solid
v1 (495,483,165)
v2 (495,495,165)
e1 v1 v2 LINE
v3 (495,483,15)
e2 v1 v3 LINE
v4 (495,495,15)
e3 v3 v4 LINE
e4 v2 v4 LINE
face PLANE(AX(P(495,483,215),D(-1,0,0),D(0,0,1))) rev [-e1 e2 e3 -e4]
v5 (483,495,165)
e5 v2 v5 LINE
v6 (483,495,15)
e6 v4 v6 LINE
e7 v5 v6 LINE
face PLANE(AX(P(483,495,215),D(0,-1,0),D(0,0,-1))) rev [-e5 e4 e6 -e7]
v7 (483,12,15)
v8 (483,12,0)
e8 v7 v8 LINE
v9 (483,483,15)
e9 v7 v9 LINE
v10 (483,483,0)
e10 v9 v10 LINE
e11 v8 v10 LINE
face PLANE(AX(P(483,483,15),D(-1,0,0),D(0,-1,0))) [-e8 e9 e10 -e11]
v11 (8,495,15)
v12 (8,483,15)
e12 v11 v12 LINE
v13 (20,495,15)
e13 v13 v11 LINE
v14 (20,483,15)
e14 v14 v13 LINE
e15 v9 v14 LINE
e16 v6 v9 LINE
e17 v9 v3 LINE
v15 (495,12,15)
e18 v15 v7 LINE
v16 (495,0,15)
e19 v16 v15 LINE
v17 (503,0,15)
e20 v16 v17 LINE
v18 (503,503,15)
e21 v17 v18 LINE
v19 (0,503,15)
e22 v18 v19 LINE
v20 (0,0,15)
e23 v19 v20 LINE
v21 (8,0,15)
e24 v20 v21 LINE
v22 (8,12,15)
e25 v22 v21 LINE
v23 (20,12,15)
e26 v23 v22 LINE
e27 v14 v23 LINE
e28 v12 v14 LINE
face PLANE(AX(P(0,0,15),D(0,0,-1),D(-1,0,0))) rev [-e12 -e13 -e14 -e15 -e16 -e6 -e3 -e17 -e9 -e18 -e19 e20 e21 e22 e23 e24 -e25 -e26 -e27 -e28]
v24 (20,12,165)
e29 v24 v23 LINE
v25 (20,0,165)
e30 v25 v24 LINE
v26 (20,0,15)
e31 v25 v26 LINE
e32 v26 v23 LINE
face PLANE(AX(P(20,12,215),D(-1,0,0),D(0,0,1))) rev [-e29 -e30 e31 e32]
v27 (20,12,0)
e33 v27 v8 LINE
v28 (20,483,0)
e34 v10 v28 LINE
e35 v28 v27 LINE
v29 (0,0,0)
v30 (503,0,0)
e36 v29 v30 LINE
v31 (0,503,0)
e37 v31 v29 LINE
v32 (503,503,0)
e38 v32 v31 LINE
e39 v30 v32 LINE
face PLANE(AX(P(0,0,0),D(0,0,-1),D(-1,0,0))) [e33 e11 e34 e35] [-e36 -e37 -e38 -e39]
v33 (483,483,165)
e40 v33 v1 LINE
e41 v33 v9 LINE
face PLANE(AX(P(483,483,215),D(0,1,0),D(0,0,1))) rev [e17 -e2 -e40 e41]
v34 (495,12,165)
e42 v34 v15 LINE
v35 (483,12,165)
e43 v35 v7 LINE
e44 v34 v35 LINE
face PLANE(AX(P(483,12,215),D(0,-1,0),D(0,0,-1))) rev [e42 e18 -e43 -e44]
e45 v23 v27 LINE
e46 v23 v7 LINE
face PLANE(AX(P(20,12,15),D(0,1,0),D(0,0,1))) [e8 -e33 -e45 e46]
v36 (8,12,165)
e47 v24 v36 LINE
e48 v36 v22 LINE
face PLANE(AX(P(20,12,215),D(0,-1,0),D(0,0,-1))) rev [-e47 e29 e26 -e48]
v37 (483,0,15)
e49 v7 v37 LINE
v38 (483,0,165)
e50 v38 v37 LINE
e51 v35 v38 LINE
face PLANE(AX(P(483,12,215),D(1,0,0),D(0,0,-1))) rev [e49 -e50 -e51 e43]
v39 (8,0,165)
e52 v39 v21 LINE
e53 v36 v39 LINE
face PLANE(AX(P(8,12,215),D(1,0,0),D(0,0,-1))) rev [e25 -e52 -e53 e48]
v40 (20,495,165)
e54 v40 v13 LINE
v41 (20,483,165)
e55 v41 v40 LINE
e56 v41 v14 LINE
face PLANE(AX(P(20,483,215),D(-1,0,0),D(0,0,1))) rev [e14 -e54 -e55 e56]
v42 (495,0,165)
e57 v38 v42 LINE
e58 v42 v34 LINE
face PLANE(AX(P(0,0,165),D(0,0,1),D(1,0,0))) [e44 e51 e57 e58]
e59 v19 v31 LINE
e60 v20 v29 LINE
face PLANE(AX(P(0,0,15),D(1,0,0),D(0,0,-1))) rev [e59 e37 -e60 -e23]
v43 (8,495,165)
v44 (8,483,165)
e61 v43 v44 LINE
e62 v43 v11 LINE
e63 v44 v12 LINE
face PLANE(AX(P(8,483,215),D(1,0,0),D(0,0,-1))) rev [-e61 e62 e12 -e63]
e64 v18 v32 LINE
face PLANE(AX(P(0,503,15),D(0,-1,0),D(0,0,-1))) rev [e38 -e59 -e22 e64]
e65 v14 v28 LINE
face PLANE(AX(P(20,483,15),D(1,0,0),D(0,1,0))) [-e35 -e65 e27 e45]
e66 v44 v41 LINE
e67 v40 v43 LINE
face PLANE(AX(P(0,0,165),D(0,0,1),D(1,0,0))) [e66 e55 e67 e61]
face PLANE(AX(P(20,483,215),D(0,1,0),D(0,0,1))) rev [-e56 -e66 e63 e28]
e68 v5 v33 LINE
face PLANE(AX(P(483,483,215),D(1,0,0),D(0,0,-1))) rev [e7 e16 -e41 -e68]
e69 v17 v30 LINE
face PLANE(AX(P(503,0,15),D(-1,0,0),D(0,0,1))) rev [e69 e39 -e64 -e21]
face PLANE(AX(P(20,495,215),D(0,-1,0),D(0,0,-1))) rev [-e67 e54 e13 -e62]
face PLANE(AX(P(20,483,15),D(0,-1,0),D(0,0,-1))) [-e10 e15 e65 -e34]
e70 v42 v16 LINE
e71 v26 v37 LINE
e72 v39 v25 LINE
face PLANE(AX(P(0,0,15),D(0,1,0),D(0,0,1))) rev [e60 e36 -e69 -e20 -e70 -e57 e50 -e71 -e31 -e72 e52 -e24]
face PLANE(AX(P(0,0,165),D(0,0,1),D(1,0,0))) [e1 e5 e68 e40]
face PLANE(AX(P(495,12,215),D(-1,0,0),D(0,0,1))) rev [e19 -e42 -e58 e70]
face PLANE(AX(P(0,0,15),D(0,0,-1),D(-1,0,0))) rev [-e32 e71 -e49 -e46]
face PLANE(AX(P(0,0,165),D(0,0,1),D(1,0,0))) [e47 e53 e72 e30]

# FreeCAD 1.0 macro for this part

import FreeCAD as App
import Part
import Sketcher

V = App.Vector

doc = App.newDocument("Part")
body = doc.addObject("PartDesign::Body", "Body")

sketch1 = body.newObject("Sketcher::SketchObject", "Sketch")
sketch1.AttachmentSupport = (doc.getObject("XY_Plane"), [""])
sketch1.MapMode = "FlatFace"
sketch1.addGeometry(Part.LineSegment(V(0, 503, 0), V(0, 0, 0)), False)
sketch1.addGeometry(Part.LineSegment(V(0, 0, 0), V(503, 0, 0)), False)
sketch1.addGeometry(Part.LineSegment(V(503, 0, 0), V(503, 503, 0)), False)
sketch1.addGeometry(Part.LineSegment(V(503, 503, 0), V(0, 503, 0)), False)
sketch1.addGeometry(Part.LineSegment(V(483, 12, 0), V(20, 12, 0)), False)
sketch1.addGeometry(Part.LineSegment(V(20, 12, 0), V(20, 483, 0)), False)
sketch1.addGeometry(Part.LineSegment(V(20, 483, 0), V(483, 483, 0)), False)
sketch1.addGeometry(Part.LineSegment(V(483, 483, 0), V(483, 12, 0)), False)
sketch1.addConstraint(Sketcher.Constraint("Coincident", 0, 2, 1, 1))
sketch1.addConstraint(Sketcher.Constraint("Coincident", 1, 2, 2, 1))
sketch1.addConstraint(Sketcher.Constraint("Coincident", 2, 2, 3, 1))
sketch1.addConstraint(Sketcher.Constraint("Coincident", 3, 2, 0, 1))
sketch1.addConstraint(Sketcher.Constraint("Coincident", 4, 2, 5, 1))
sketch1.addConstraint(Sketcher.Constraint("Coincident", 5, 2, 6, 1))
sketch1.addConstraint(Sketcher.Constraint("Coincident", 6, 2, 7, 1))
sketch1.addConstraint(Sketcher.Constraint("Coincident", 7, 2, 4, 1))
sketch1.addConstraint(Sketcher.Constraint("Vertical", 0))
sketch1.addConstraint(Sketcher.Constraint("Horizontal", 1))
sketch1.addConstraint(Sketcher.Constraint("Vertical", 2))
sketch1.addConstraint(Sketcher.Constraint("Horizontal", 3))
sketch1.addConstraint(Sketcher.Constraint("Horizontal", 4))
sketch1.addConstraint(Sketcher.Constraint("Vertical", 5))
sketch1.addConstraint(Sketcher.Constraint("Horizontal", 6))
sketch1.addConstraint(Sketcher.Constraint("Vertical", 7))
sketch1.addConstraint(Sketcher.Constraint("Coincident", 0, 2, -1, 1))
sketch1.addConstraint(Sketcher.Constraint("Equal", 3, 0))
sketch1.addConstraint(Sketcher.Constraint("DistanceX", 1, 1, 1, 2, 503.0))
sketch1.addConstraint(Sketcher.Constraint("DistanceX", 4, 2, 4, 1, 463.0))
sketch1.addConstraint(Sketcher.Constraint("DistanceY", 5, 1, 5, 2, 471.0))
sketch1.addConstraint(Sketcher.Constraint("DistanceX", -1, 1, 4, 2, 20.0))
sketch1.addConstraint(Sketcher.Constraint("DistanceY", -1, 1, 4, 2, 12.0))
pad1 = body.newObject("PartDesign::Pad", "Pad")
pad1.Profile = sketch1
pad1.Length = 15

sketch2 = body.newObject("Sketcher::SketchObject", "Sketch001")
sketch2.AttachmentSupport = (doc.getObject("XY_Plane"), [""])
sketch2.MapMode = "FlatFace"
sketch2.AttachmentOffset = App.Placement(V(0, 0, 15), App.Rotation())
sketch2.addGeometry(Part.LineSegment(V(8, 495, 0), V(8, 483, 0)), False)
sketch2.addGeometry(Part.LineSegment(V(8, 483, 0), V(20, 483, 0)), False)
sketch2.addGeometry(Part.LineSegment(V(20, 483, 0), V(20, 495, 0)), False)
sketch2.addGeometry(Part.LineSegment(V(20, 495, 0), V(8, 495, 0)), False)
sketch2.addGeometry(Part.LineSegment(V(483, 495, 0), V(483, 483, 0)), False)
sketch2.addGeometry(Part.LineSegment(V(483, 483, 0), V(495, 483, 0)), False)
sketch2.addGeometry(Part.LineSegment(V(495, 483, 0), V(495, 495, 0)), False)
sketch2.addGeometry(Part.LineSegment(V(495, 495, 0), V(483, 495, 0)), False)
sketch2.addGeometry(Part.LineSegment(V(8, 12, 0), V(8, 0, 0)), False)
sketch2.addGeometry(Part.LineSegment(V(8, 0, 0), V(20, 0, 0)), False)
sketch2.addGeometry(Part.LineSegment(V(20, 0, 0), V(20, 12, 0)), False)
sketch2.addGeometry(Part.LineSegment(V(20, 12, 0), V(8, 12, 0)), False)
sketch2.addGeometry(Part.LineSegment(V(483, 12, 0), V(483, 0, 0)), False)
sketch2.addGeometry(Part.LineSegment(V(483, 0, 0), V(495, 0, 0)), False)
sketch2.addGeometry(Part.LineSegment(V(495, 0, 0), V(495, 12, 0)), False)
sketch2.addGeometry(Part.LineSegment(V(495, 12, 0), V(483, 12, 0)), False)
sketch2.addConstraint(Sketcher.Constraint("Coincident", 0, 2, 1, 1))
sketch2.addConstraint(Sketcher.Constraint("Coincident", 1, 2, 2, 1))
sketch2.addConstraint(Sketcher.Constraint("Coincident", 2, 2, 3, 1))
sketch2.addConstraint(Sketcher.Constraint("Coincident", 3, 2, 0, 1))
sketch2.addConstraint(Sketcher.Constraint("Coincident", 4, 2, 5, 1))
sketch2.addConstraint(Sketcher.Constraint("Coincident", 5, 2, 6, 1))
sketch2.addConstraint(Sketcher.Constraint("Coincident", 6, 2, 7, 1))
sketch2.addConstraint(Sketcher.Constraint("Coincident", 7, 2, 4, 1))
sketch2.addConstraint(Sketcher.Constraint("Coincident", 8, 2, 9, 1))
sketch2.addConstraint(Sketcher.Constraint("Coincident", 9, 2, 10, 1))
sketch2.addConstraint(Sketcher.Constraint("Coincident", 10, 2, 11, 1))
sketch2.addConstraint(Sketcher.Constraint("Coincident", 11, 2, 8, 1))
sketch2.addConstraint(Sketcher.Constraint("Coincident", 12, 2, 13, 1))
sketch2.addConstraint(Sketcher.Constraint("Coincident", 13, 2, 14, 1))
sketch2.addConstraint(Sketcher.Constraint("Coincident", 14, 2, 15, 1))
sketch2.addConstraint(Sketcher.Constraint("Coincident", 15, 2, 12, 1))
sketch2.addConstraint(Sketcher.Constraint("Vertical", 0))
sketch2.addConstraint(Sketcher.Constraint("Horizontal", 1))
sketch2.addConstraint(Sketcher.Constraint("Vertical", 2))
sketch2.addConstraint(Sketcher.Constraint("Horizontal", 3))
sketch2.addConstraint(Sketcher.Constraint("Vertical", 4))
sketch2.addConstraint(Sketcher.Constraint("Horizontal", 5))
sketch2.addConstraint(Sketcher.Constraint("Vertical", 6))
sketch2.addConstraint(Sketcher.Constraint("Horizontal", 7))
sketch2.addConstraint(Sketcher.Constraint("Vertical", 8))
sketch2.addConstraint(Sketcher.Constraint("Horizontal", 9))
sketch2.addConstraint(Sketcher.Constraint("Vertical", 10))
sketch2.addConstraint(Sketcher.Constraint("Horizontal", 11))
sketch2.addConstraint(Sketcher.Constraint("Vertical", 12))
sketch2.addConstraint(Sketcher.Constraint("Horizontal", 13))
sketch2.addConstraint(Sketcher.Constraint("Vertical", 14))
sketch2.addConstraint(Sketcher.Constraint("Horizontal", 15))
sketch2.addConstraint(Sketcher.Constraint("PointOnObject", 8, 2, -1))
sketch2.addConstraint(Sketcher.Constraint("PointOnObject", 12, 2, -1))
sketch2.addConstraint(Sketcher.Constraint("Horizontal", 1, 2, 4, 2))
sketch2.addConstraint(Sketcher.Constraint("Horizontal", 3, 2, 6, 2))
sketch2.addConstraint(Sketcher.Constraint("Horizontal", 11, 2, 14, 2))
sketch2.addConstraint(Sketcher.Constraint("Vertical", 3, 2, 8, 2))
sketch2.addConstraint(Sketcher.Constraint("Vertical", 2, 2, 9, 2))
sketch2.addConstraint(Sketcher.Constraint("Vertical", 7, 2, 12, 2))
sketch2.addConstraint(Sketcher.Constraint("Vertical", 6, 2, 13, 2))
sketch2.addConstraint(Sketcher.Constraint("Equal", 3, 5))
sketch2.addConstraint(Sketcher.Constraint("Equal", 15, 0))
sketch2.addConstraint(Sketcher.Constraint("Equal", 6, 8))
sketch2.addConstraint(Sketcher.Constraint("DistanceX", 1, 1, 1, 2, 12.0))
sketch2.addConstraint(Sketcher.Constraint("DistanceX", -1, 1, 0, 2, 8.0))
sketch2.addConstraint(Sketcher.Constraint("DistanceY", -1, 1, 0, 2, 483.0))
sketch2.addConstraint(Sketcher.Constraint("DistanceX", -1, 1, 4, 2, 483.0))
pad2 = body.newObject("PartDesign::Pad", "Pad001")
pad2.Profile = sketch2
pad2.Length = 200

sketch3 = body.newObject("Sketcher::SketchObject", "Sketch002")
sketch3.AttachmentSupport = (doc.getObject("XY_Plane"), [""])
sketch3.MapMode = "FlatFace"
sketch3.AttachmentOffset = App.Placement(V(0, 0, 215), App.Rotation())
sketch3.addGeometry(Part.LineSegment(V(8, 495, 0), V(8, 0, 0)), False)
sketch3.addGeometry(Part.LineSegment(V(8, 0, 0), V(495, 0, 0)), False)
sketch3.addGeometry(Part.LineSegment(V(495, 0, 0), V(495, 495, 0)), False)
sketch3.addGeometry(Part.LineSegment(V(495, 495, 0), V(8, 495, 0)), False)
sketch3.addConstraint(Sketcher.Constraint("Coincident", 0, 2, 1, 1))
sketch3.addConstraint(Sketcher.Constraint("Coincident", 1, 2, 2, 1))
sketch3.addConstraint(Sketcher.Constraint("Coincident", 2, 2, 3, 1))
sketch3.addConstraint(Sketcher.Constraint("Coincident", 3, 2, 0, 1))
sketch3.addConstraint(Sketcher.Constraint("Vertical", 0))
sketch3.addConstraint(Sketcher.Constraint("Horizontal", 1))
sketch3.addConstraint(Sketcher.Constraint("Vertical", 2))
sketch3.addConstraint(Sketcher.Constraint("Horizontal", 3))
sketch3.addConstraint(Sketcher.Constraint("PointOnObject", 0, 2, -1))
sketch3.addConstraint(Sketcher.Constraint("DistanceX", 1, 1, 1, 2, 487.0))
sketch3.addConstraint(Sketcher.Constraint("DistanceY", 0, 2, 0, 1, 495.0))
sketch3.addConstraint(Sketcher.Constraint("DistanceX", -1, 1, 0, 2, 8.0))
pocket1 = body.newObject("PartDesign::Pocket", "Pocket")
pocket1.Profile = sketch3
pocket1.Length = 50

doc.recompute()
